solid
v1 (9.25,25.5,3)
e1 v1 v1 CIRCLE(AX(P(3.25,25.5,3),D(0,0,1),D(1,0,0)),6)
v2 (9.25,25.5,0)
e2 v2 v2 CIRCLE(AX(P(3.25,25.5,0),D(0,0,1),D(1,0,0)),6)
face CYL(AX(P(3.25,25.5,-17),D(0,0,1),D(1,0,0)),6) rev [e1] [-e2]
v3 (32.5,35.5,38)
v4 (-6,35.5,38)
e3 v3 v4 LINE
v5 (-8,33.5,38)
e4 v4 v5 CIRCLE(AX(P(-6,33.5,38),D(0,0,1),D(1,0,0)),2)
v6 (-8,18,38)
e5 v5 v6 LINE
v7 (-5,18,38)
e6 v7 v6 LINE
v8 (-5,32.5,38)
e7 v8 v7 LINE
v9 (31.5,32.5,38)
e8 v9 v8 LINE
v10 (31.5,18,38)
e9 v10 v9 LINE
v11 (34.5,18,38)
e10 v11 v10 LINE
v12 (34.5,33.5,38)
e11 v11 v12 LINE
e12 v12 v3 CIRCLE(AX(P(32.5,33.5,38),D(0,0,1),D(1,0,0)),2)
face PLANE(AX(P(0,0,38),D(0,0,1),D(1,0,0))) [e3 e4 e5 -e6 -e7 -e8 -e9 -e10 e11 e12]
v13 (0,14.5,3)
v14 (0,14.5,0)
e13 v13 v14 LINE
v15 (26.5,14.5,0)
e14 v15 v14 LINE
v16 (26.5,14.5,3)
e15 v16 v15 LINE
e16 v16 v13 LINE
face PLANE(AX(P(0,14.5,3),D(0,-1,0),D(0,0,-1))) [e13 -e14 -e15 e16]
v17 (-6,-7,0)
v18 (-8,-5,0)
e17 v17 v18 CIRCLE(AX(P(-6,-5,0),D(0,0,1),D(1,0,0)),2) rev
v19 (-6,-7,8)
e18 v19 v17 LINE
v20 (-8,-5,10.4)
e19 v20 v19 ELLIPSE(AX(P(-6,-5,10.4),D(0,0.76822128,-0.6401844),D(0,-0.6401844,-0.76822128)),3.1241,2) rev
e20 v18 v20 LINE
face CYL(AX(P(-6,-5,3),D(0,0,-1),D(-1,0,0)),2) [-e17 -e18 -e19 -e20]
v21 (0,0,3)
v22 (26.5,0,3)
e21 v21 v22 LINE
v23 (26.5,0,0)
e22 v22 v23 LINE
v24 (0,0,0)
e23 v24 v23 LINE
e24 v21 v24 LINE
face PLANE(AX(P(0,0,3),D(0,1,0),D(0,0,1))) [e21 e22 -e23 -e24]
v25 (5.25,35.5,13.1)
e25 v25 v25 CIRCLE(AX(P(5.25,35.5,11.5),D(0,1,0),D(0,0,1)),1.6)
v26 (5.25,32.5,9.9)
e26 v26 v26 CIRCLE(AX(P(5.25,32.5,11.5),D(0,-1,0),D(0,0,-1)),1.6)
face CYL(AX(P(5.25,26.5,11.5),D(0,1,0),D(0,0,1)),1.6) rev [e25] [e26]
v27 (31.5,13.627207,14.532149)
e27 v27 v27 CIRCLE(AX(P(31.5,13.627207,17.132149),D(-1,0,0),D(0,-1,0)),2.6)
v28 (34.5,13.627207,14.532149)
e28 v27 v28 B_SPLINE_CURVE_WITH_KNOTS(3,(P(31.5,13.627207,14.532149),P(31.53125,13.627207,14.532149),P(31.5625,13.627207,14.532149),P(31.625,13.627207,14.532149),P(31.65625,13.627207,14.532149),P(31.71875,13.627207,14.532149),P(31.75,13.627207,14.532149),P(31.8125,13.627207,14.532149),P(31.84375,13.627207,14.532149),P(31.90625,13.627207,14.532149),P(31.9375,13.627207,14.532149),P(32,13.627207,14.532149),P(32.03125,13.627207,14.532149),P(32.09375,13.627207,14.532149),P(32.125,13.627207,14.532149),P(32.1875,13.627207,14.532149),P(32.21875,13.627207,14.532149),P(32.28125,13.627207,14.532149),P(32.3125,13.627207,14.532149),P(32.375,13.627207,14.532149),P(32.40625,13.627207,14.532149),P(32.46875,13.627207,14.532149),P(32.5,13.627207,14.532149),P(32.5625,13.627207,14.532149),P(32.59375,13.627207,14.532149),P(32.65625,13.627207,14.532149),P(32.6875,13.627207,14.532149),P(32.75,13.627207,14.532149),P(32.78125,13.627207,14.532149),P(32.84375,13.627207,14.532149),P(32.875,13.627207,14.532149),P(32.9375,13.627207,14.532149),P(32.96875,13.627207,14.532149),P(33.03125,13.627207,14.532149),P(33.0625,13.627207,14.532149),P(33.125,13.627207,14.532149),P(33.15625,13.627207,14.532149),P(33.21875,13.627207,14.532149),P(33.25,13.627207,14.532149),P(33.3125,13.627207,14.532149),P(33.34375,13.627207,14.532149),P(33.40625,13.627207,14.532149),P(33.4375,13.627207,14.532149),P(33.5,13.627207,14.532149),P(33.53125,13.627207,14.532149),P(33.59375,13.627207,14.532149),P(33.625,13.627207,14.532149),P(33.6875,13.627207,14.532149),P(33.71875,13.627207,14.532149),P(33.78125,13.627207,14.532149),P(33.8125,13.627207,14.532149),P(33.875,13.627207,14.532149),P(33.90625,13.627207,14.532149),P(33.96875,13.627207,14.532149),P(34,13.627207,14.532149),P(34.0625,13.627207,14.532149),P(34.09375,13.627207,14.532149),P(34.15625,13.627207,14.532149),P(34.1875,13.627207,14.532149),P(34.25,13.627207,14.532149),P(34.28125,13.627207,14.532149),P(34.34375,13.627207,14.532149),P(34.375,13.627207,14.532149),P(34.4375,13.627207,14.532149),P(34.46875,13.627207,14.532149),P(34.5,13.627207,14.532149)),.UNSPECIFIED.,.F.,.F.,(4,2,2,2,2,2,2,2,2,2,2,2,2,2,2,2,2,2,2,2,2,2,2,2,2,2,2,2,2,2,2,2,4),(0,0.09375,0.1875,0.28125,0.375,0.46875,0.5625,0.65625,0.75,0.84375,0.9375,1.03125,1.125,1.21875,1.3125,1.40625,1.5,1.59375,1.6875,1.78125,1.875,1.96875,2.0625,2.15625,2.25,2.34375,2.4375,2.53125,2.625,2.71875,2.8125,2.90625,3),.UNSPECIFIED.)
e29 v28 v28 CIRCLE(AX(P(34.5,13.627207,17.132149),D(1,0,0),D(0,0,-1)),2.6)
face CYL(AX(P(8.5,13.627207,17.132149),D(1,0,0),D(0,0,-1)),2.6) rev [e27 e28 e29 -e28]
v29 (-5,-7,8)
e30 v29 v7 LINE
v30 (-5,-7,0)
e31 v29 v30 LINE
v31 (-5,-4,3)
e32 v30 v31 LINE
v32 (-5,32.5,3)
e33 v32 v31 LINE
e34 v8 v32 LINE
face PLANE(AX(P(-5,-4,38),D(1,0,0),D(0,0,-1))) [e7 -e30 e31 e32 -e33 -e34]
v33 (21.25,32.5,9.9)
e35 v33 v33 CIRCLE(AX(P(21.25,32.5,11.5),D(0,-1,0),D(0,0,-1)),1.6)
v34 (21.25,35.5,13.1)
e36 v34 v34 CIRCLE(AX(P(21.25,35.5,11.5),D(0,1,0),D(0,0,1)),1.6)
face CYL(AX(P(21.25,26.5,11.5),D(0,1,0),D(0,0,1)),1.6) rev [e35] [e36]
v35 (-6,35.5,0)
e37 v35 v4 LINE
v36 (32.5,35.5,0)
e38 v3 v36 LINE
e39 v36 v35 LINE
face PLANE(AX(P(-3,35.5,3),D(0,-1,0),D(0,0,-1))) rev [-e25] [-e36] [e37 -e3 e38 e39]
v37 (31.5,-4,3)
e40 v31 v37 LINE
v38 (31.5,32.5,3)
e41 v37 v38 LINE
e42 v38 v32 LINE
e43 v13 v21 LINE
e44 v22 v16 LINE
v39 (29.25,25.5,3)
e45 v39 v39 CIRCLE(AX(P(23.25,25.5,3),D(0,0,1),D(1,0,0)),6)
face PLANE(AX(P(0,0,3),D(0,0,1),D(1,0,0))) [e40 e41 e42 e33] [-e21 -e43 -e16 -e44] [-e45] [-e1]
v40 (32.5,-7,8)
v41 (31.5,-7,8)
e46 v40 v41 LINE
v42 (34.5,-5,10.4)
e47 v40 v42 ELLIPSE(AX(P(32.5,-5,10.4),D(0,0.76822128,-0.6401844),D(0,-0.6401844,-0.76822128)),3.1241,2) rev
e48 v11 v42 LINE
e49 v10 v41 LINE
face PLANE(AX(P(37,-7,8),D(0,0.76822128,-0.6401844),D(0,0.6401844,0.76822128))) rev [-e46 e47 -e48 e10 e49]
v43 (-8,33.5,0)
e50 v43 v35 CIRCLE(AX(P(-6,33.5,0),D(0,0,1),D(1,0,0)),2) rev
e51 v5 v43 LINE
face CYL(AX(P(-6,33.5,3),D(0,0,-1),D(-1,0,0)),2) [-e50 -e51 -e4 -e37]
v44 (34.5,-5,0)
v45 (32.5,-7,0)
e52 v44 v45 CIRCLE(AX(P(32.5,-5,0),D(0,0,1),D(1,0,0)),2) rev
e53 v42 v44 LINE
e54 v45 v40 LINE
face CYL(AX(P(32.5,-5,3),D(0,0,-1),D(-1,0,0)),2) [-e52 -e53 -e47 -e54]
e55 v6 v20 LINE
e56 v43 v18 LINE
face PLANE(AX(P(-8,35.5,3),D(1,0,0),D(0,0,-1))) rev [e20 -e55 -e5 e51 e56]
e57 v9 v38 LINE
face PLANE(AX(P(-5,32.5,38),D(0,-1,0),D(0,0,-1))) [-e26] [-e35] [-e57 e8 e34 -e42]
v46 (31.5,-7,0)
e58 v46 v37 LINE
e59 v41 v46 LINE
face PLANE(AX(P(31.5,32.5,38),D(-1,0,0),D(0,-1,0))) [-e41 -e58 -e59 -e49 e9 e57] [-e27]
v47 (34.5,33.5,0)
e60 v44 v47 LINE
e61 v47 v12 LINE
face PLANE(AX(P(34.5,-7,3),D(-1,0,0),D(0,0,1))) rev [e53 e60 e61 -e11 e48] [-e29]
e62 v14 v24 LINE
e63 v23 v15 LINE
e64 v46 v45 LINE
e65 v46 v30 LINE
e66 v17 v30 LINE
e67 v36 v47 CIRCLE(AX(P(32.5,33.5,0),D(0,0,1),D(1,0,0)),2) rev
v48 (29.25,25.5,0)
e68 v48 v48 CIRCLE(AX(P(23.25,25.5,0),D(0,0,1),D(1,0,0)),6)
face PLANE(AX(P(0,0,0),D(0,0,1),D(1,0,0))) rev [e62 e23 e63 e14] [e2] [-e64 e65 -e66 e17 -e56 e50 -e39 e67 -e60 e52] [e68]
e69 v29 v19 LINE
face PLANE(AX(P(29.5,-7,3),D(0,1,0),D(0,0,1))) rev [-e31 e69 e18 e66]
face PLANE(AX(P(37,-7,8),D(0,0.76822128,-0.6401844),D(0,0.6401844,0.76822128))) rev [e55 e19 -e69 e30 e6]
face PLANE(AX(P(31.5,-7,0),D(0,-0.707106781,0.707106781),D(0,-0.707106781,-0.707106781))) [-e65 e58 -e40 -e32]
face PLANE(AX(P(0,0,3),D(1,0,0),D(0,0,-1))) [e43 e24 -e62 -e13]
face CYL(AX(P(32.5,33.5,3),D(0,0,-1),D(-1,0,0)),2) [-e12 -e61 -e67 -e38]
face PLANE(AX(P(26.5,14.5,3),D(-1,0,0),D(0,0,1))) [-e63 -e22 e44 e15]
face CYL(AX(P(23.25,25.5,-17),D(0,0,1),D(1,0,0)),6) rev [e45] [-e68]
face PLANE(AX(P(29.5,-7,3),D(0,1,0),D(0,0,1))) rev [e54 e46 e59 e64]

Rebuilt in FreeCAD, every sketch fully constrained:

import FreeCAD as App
import Part
import Sketcher
Q = App.Units.Quantity


def edges_at(feature, points):
    """Names of the edges that pass closest to the given points."""
    edges = feature.Shape.Edges
    near = lambda p: min(range(len(edges)), key=lambda i: edges[i].distToShape(Part.Vertex(*p))[0])
    return sorted({f"Edge{near(p) + 1}" for p in points})


def add_polygon(sketch, points):
    """Adds a closed chain of lines whose ends are joined by coincident constraints."""
    first, n = sketch.GeometryCount, len(points)
    for a, b in zip(points, points[1:] + points[:1]):
        sketch.addGeometry(Part.LineSegment(App.Vector(*a, 0), App.Vector(*b, 0)), False)
    for i in range(n):
        sketch.addConstraint(Sketcher.Constraint("Coincident", first + i, 2, first + (i + 1) % n, 1))

doc = App.newDocument("Part")
body = doc.addObject("PartDesign::Body", "Body")

# Sketch on XY plane
sketch1 = body.newObject("Sketcher::SketchObject", "Sketch")
sketch1.AttachmentSupport = (doc.getObject("XY_Plane"), [""])
sketch1.MapMode = "FlatFace"
add_polygon(sketch1, [(34, -7), (34, 36), (-8, 36), (-8, -7)])  # lines 0-3
add_polygon(sketch1, [(26, 0), (0, 0), (0, 14), (26, 14)])  # lines 4-7
sketch1.addConstraint(Sketcher.Constraint("Vertical", 0))
sketch1.addConstraint(Sketcher.Constraint("Horizontal", 1))
sketch1.addConstraint(Sketcher.Constraint("Vertical", 2))
sketch1.addConstraint(Sketcher.Constraint("Horizontal", 3))
sketch1.addConstraint(Sketcher.Constraint("Horizontal", 4))
sketch1.addConstraint(Sketcher.Constraint("Vertical", 5))
sketch1.addConstraint(Sketcher.Constraint("Horizontal", 6))
sketch1.addConstraint(Sketcher.Constraint("Vertical", 7))
sketch1.addConstraint(Sketcher.Constraint("Coincident", 4, 2, -1, 1))
sketch1.addConstraint(Sketcher.Constraint("Equal", 3, 0))
sketch1.addConstraint(Sketcher.Constraint("DistanceX", 1, 2, 1, 1, Q("42.5 mm")))
sketch1.addConstraint(Sketcher.Constraint("DistanceX", 4, 2, 4, 1, Q("26.5 mm")))
sketch1.addConstraint(Sketcher.Constraint("DistanceY", 5, 1, 5, 2, Q("14.5 mm")))
sketch1.addConstraint(Sketcher.Constraint("DistanceX", 1, 2, -1, 1, Q("8 mm")))
sketch1.addConstraint(Sketcher.Constraint("DistanceY", 2, 2, -1, 1, Q("7 mm")))
pad1 = body.newObject("PartDesign::Pad", "Pad")
pad1.Profile = sketch1
pad1.Length = 3

# Sketch on XY plane
sketch2 = body.newObject("Sketcher::SketchObject", "Sketch001")
sketch2.AttachmentSupport = (doc.getObject("XY_Plane"), [""])
sketch2.MapMode = "FlatFace"
sketch2.AttachmentOffset = App.Placement(App.Vector(0, 0, 3), App.Rotation())
sketch2.addGeometry(Part.Circle(App.Vector(3, 26, 0), App.Vector(0, 0, 1), 6), False)
sketch2.addGeometry(Part.Circle(App.Vector(23, 26, 0), App.Vector(0, 0, 1), 6), False)
sketch2.addConstraint(Sketcher.Constraint("Equal", 0, 1))
sketch2.addConstraint(Sketcher.Constraint("Horizontal", 0, 3, 1, 3))
sketch2.addConstraint(Sketcher.Constraint("Diameter", 0, Q("12 mm")))
sketch2.addConstraint(Sketcher.Constraint("DistanceX", 0, 3, 1, 3, Q("20 mm")))
sketch2.addConstraint(Sketcher.Constraint("DistanceY", -1, 1, 0, 3, Q("25.5 mm")))
sketch2.addConstraint(Sketcher.Constraint("DistanceX", -1, 1, 0, 3, Q("3.25 mm")))
pocket1 = body.newObject("PartDesign::Pocket", "Pocket")
pocket1.Profile = sketch2
pocket1.Length = 20

# Sketch on XY plane
sketch3 = body.newObject("Sketcher::SketchObject", "Sketch002")
sketch3.AttachmentSupport = (doc.getObject("XY_Plane"), [""])
sketch3.MapMode = "FlatFace"
sketch3.AttachmentOffset = App.Placement(App.Vector(0, 0, 3), App.Rotation())
add_polygon(sketch3, [(-8, 36), (-8, -7), (34, -7), (34, 36)])  # lines 0-3
add_polygon(sketch3, [(32, -4), (-5, -4), (-5, 32), (32, 32)])  # lines 4-7
sketch3.addConstraint(Sketcher.Constraint("Vertical", 0))
sketch3.addConstraint(Sketcher.Constraint("Horizontal", 1))
sketch3.addConstraint(Sketcher.Constraint("Vertical", 2))
sketch3.addConstraint(Sketcher.Constraint("Horizontal", 3))
sketch3.addConstraint(Sketcher.Constraint("Horizontal", 4))
sketch3.addConstraint(Sketcher.Constraint("Vertical", 5))
sketch3.addConstraint(Sketcher.Constraint("Horizontal", 6))
sketch3.addConstraint(Sketcher.Constraint("Vertical", 7))
sketch3.addConstraint(Sketcher.Constraint("Equal", 3, 0))
sketch3.addConstraint(Sketcher.Constraint("Equal", 6, 5))
sketch3.addConstraint(Sketcher.Constraint("DistanceX", 1, 1, 1, 2, Q("42.5 mm")))
sketch3.addConstraint(Sketcher.Constraint("DistanceX", 4, 2, 4, 1, Q("36.5 mm")))
sketch3.addConstraint(Sketcher.Constraint("DistanceX", 0, 2, -1, 1, Q("8 mm")))
sketch3.addConstraint(Sketcher.Constraint("DistanceY", 0, 2, -1, 1, Q("7 mm")))
sketch3.addConstraint(Sketcher.Constraint("DistanceX", 4, 2, -1, 1, Q("5 mm")))
sketch3.addConstraint(Sketcher.Constraint("DistanceY", 4, 2, -1, 1, Q("4 mm")))
pad2 = body.newObject("PartDesign::Pad", "Pad001")
pad2.Profile = sketch3
pad2.Length = 35

# Sketch on YZ plane
sketch4 = body.newObject("Sketcher::SketchObject", "Sketch003")
sketch4.AttachmentSupport = (doc.getObject("YZ_Plane"), [""])
sketch4.MapMode = "FlatFace"
sketch4.AttachmentOffset = App.Placement(App.Vector(0, 0, -8), App.Rotation())
add_polygon(sketch4, [(-7, 38), (18, 38), (-7, 8)])  # lines 0-2
sketch4.addConstraint(Sketcher.Constraint("Horizontal", 0))
sketch4.addConstraint(Sketcher.Constraint("Vertical", 2))
sketch4.addConstraint(Sketcher.Constraint("DistanceX", 0, 1, 0, 2, Q("25 mm")))
sketch4.addConstraint(Sketcher.Constraint("DistanceY", 2, 1, 2, 2, Q("30 mm")))
sketch4.addConstraint(Sketcher.Constraint("DistanceX", -1, 1, 0, 2, Q("18 mm")))
sketch4.addConstraint(Sketcher.Constraint("DistanceY", -1, 1, 0, 2, Q("38 mm")))
pocket2 = body.newObject("PartDesign::Pocket", "Pocket001")
pocket2.Profile = sketch4
pocket2.Length = 45
pocket2.Reversed = True

# Sketch on YZ plane
sketch5 = body.newObject("Sketcher::SketchObject", "Sketch004")
sketch5.AttachmentSupport = (doc.getObject("YZ_Plane"), [""])
sketch5.MapMode = "FlatFace"
sketch5.AttachmentOffset = App.Placement(App.Vector(0, 0, 34.5), App.Rotation())
sketch5.addGeometry(Part.Circle(App.Vector(13.6, 17.1, 0), App.Vector(0, 0, 1), 2.6), False)
sketch5.addConstraint(Sketcher.Constraint("Diameter", 0, Q("5.2 mm")))
sketch5.addConstraint(Sketcher.Constraint("DistanceY", -1, 1, 0, 3, Q("17.132149 mm")))
sketch5.addConstraint(Sketcher.Constraint("DistanceX", -1, 1, 0, 3, Q("13.627207 mm")))
pocket3 = body.newObject("PartDesign::Pocket", "Pocket002")
pocket3.Profile = sketch5
pocket3.Length = 26
doc.recompute()

fillet = body.newObject("PartDesign::Fillet", "Fillet")
fillet.Base = (pocket3, edges_at(pocket3, [
    (-8, 35.5, 19),
    (34.5, 35.5, 19),
    (34.5, -7, 4),
    (-8, -7, 4),
]))
fillet.Radius = 2

# Sketch on XZ plane
sketch6 = body.newObject("Sketcher::SketchObject", "Sketch005")
sketch6.AttachmentSupport = (doc.getObject("XZ_Plane"), [""])
sketch6.MapMode = "FlatFace"
sketch6.AttachmentOffset = App.Placement(App.Vector(0, 0, -35.5), App.Rotation())
sketch6.addGeometry(Part.Circle(App.Vector(21.2, 11.5, 0), App.Vector(0, 0, 1), 1.6), False)
sketch6.addGeometry(Part.Circle(App.Vector(5.2, 11.5, 0), App.Vector(0, 0, 1), 1.6), False)
sketch6.addConstraint(Sketcher.Constraint("Equal", 0, 1))
sketch6.addConstraint(Sketcher.Constraint("Horizontal", 0, 3, 1, 3))
sketch6.addConstraint(Sketcher.Constraint("Diameter", 0, Q("3.2 mm")))
sketch6.addConstraint(Sketcher.Constraint("DistanceX", 1, 3, 0, 3, Q("16 mm")))
sketch6.addConstraint(Sketcher.Constraint("DistanceY", -1, 1, 0, 3, Q("11.5 mm")))
sketch6.addConstraint(Sketcher.Constraint("DistanceX", -1, 1, 0, 3, Q("21.25 mm")))
pocket4 = body.newObject("PartDesign::Pocket", "Pocket003")
pocket4.Profile = sketch6
pocket4.Length = 9
pocket4.Reversed = True

# Sketch on YZ plane
sketch7 = body.newObject("Sketcher::SketchObject", "Sketch006")
sketch7.AttachmentSupport = (doc.getObject("YZ_Plane"), [""])
sketch7.MapMode = "FlatFace"
sketch7.AttachmentOffset = App.Placement(App.Vector(0, 0, -5), App.Rotation())
add_polygon(sketch7, [(-7, 0), (-4, 3), (-4, 14.2), (-7, 14.2)])  # lines 0-3
sketch7.addConstraint(Sketcher.Constraint("Vertical", 1))
sketch7.addConstraint(Sketcher.Constraint("Horizontal", 2))
sketch7.addConstraint(Sketcher.Constraint("Vertical", 3))
sketch7.addConstraint(Sketcher.Constraint("PointOnObject", 3, 2, -1))
sketch7.addConstraint(Sketcher.Constraint("DistanceX", 2, 2, 2, 1, Q("3 mm")))
sketch7.addConstraint(Sketcher.Constraint("Angle", 0, Q("45 deg")))
sketch7.addConstraint(Sketcher.Constraint("DistanceX", 0, 2, -1, 1, Q("4 mm")))
sketch7.addConstraint(Sketcher.Constraint("DistanceY", 1, 1, 1, 2, Q("11.237967 mm")))
pocket5 = body.newObject("PartDesign::Pocket", "Pocket004")
pocket5.Profile = sketch7
pocket5.Length = 36.5
pocket5.Reversed = True

doc.recompute()
